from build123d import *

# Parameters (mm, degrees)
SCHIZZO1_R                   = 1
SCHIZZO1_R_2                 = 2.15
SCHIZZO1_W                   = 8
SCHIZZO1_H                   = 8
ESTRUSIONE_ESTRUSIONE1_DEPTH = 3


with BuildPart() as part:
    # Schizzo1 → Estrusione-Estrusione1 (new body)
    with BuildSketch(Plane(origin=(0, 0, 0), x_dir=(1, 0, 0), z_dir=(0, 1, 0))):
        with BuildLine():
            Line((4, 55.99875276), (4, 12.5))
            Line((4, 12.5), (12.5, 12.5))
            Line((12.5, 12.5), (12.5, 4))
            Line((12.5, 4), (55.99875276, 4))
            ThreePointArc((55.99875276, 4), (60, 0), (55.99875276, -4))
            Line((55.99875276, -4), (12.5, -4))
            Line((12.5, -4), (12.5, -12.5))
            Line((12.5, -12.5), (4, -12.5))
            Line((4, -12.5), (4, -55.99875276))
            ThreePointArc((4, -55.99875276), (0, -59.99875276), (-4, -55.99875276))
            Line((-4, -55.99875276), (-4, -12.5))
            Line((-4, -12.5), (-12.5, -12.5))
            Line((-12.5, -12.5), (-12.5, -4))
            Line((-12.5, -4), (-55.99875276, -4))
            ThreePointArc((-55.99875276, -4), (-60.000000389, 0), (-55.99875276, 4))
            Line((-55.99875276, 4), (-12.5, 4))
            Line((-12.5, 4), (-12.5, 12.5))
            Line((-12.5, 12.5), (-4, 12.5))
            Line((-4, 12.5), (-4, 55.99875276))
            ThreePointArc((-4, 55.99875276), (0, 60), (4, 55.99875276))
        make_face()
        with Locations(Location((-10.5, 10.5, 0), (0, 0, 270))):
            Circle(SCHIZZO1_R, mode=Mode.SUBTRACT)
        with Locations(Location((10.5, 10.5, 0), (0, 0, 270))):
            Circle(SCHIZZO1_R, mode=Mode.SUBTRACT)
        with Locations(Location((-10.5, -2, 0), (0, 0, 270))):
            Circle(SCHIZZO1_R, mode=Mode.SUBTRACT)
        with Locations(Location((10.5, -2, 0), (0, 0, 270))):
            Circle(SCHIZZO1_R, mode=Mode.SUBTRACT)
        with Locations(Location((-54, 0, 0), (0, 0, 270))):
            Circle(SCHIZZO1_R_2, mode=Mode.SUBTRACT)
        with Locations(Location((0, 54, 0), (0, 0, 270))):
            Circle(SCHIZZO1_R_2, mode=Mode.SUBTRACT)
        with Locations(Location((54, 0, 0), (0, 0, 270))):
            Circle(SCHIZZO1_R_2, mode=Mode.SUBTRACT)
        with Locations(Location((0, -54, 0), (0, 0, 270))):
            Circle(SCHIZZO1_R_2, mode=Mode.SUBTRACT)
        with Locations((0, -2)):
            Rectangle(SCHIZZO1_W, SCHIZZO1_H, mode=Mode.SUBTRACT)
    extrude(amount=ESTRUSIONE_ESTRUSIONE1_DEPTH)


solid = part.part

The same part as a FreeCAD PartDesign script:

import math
import FreeCAD as App
import Part
import Sketcher
from FreeCAD import Vector
Q = App.Units.Quantity

doc = App.newDocument("Part")
body = doc.addObject("PartDesign::Body", "Body")

# Sketch on XZ plane
sketch1 = body.newObject("Sketcher::SketchObject", "Sketch")
sketch1.AttachmentSupport = (doc.getObject("XZ_Plane"), [""])
sketch1.MapMode = "FlatFace"
sketch1.addGeometry([
    Part.LineSegment(Vector(4, -12.5, 0), Vector(4, -55.998753, 0)),  # 0
    Part.ArcOfCircle(Part.Circle(Vector(0, -56, 0), Vector(0, 0, 1), 4), math.radians(179.982137), math.radians(360.017863)),  # 1
    Part.LineSegment(Vector(-4, -55.998753, 0), Vector(-4, -12.5, 0)),  # 2
    Part.LineSegment(Vector(-4, -12.5, 0), Vector(-12.5, -12.5, 0)),  # 3
    Part.LineSegment(Vector(-12.5, -12.5, 0), Vector(-12.5, -4, 0)),  # 4
    Part.LineSegment(Vector(-12.5, -4, 0), Vector(-55.998753, -4, 0)),  # 5
    Part.ArcOfCircle(Part.Circle(Vector(-56, 0, 0), Vector(0, 0, 1), 4), math.radians(89.982132), math.radians(270.017868)),  # 6
    Part.LineSegment(Vector(-55.998753, 4, 0), Vector(-12.5, 4, 0)),  # 7
    Part.LineSegment(Vector(-12.5, 4, 0), Vector(-12.5, 12.5, 0)),  # 8
    Part.LineSegment(Vector(-12.5, 12.5, 0), Vector(-4, 12.5, 0)),  # 9
    Part.LineSegment(Vector(-4, 12.5, 0), Vector(-4, 55.998753, 0)),  # 10
    Part.ArcOfCircle(Part.Circle(Vector(0, 55.998753, 0), Vector(0, 0, 1), 4), math.radians(0), math.radians(180)),  # 11
    Part.LineSegment(Vector(4, 55.998753, 0), Vector(4, 12.5, 0)),  # 12
    Part.LineSegment(Vector(4, 12.5, 0), Vector(12.5, 12.5, 0)),  # 13
    Part.LineSegment(Vector(12.5, 12.5, 0), Vector(12.5, 4, 0)),  # 14
    Part.LineSegment(Vector(12.5, 4, 0), Vector(55.998753, 4, 0)),  # 15
    Part.ArcOfCircle(Part.Circle(Vector(56, 0, 0), Vector(0, 0, 1), 4), math.radians(-90.017863), math.radians(90.017863)),  # 16
    Part.LineSegment(Vector(55.998753, -4, 0), Vector(12.5, -4, 0)),  # 17
    Part.LineSegment(Vector(12.5, -4, 0), Vector(12.5, -12.5, 0)),  # 18
    Part.LineSegment(Vector(12.5, -12.5, 0), Vector(4, -12.5, 0)),  # 19
    Part.Circle(Vector(0, 54, 0), Vector(0, 0, 1), 2.15),  # 20
    Part.Circle(Vector(54, 0, 0), Vector(0, 0, 1), 2.15),  # 21
    Part.Circle(Vector(10.5, 2, 0), Vector(0, 0, 1), 1),  # 22
    Part.LineSegment(Vector(-4, 6, 0), Vector(-4, -2, 0)),  # 23
    Part.LineSegment(Vector(-4, -2, 0), Vector(4, -2, 0)),  # 24
    Part.LineSegment(Vector(4, -2, 0), Vector(4, 6, 0)),  # 25
    Part.LineSegment(Vector(4, 6, 0), Vector(-4, 6, 0)),  # 26
    Part.Circle(Vector(-10.5, 2, 0), Vector(0, 0, 1), 1),  # 27
    Part.Circle(Vector(-54, 0, 0), Vector(0, 0, 1), 2.15),  # 28
    Part.Circle(Vector(10.5, -10.5, 0), Vector(0, 0, 1), 1),  # 29
    Part.Circle(Vector(0, -54, 0), Vector(0, 0, 1), 2.15),  # 30
    Part.Circle(Vector(-10.5, -10.5, 0), Vector(0, 0, 1), 1),  # 31
], False)
sketch1.addConstraint([
    Sketcher.Constraint("Coincident", 0, 2, 1, 2),
    Sketcher.Constraint("Coincident", 1, 1, 2, 1),
    Sketcher.Constraint("Coincident", 2, 2, 3, 1),
    Sketcher.Constraint("Coincident", 3, 2, 4, 1),
    Sketcher.Constraint("Coincident", 4, 2, 5, 1),
    Sketcher.Constraint("Coincident", 5, 2, 6, 2),
    Sketcher.Constraint("Coincident", 6, 1, 7, 1),
    Sketcher.Constraint("Coincident", 7, 2, 8, 1),
    Sketcher.Constraint("Coincident", 8, 2, 9, 1),
    Sketcher.Constraint("Coincident", 9, 2, 10, 1),
    Sketcher.Constraint("Tangent", 10, 2, 11, 2),
    Sketcher.Constraint("Tangent", 11, 1, 12, 1),
    Sketcher.Constraint("Coincident", 12, 2, 13, 1),
    Sketcher.Constraint("Coincident", 13, 2, 14, 1),
    Sketcher.Constraint("Coincident", 14, 2, 15, 1),
    Sketcher.Constraint("Coincident", 15, 2, 16, 2),
    Sketcher.Constraint("Coincident", 16, 1, 17, 1),
    Sketcher.Constraint("Coincident", 17, 2, 18, 1),
    Sketcher.Constraint("Coincident", 18, 2, 19, 1),
    Sketcher.Constraint("Coincident", 19, 2, 0, 1),
    Sketcher.Constraint("Coincident", 23, 2, 24, 1),
    Sketcher.Constraint("Coincident", 24, 2, 25, 1),
    Sketcher.Constraint("Coincident", 25, 2, 26, 1),
    Sketcher.Constraint("Coincident", 26, 2, 23, 1),
    Sketcher.Constraint("Vertical", 0),
    Sketcher.Constraint("Vertical", 2),
    Sketcher.Constraint("Horizontal", 3),
    Sketcher.Constraint("Vertical", 4),
    Sketcher.Constraint("Horizontal", 5),
    Sketcher.Constraint("Horizontal", 7),
    Sketcher.Constraint("Vertical", 8),
    Sketcher.Constraint("Horizontal", 9),
    Sketcher.Constraint("Vertical", 10),
    Sketcher.Constraint("Vertical", 12),
    Sketcher.Constraint("Horizontal", 13),
    Sketcher.Constraint("Vertical", 14),
    Sketcher.Constraint("Horizontal", 15),
    Sketcher.Constraint("Horizontal", 17),
    Sketcher.Constraint("Vertical", 18),
    Sketcher.Constraint("Horizontal", 19),
    Sketcher.Constraint("Vertical", 23),
    Sketcher.Constraint("Horizontal", 24),
    Sketcher.Constraint("Vertical", 25),
    Sketcher.Constraint("Horizontal", 26),
    Sketcher.Constraint("Equal", 1, 6),
    Sketcher.Constraint("Equal", 6, 11),
    Sketcher.Constraint("Equal", 11, 16),
    Sketcher.Constraint("Equal", 20, 21),
    Sketcher.Constraint("Equal", 22, 27),
    Sketcher.Constraint("Equal", 21, 28),
    Sketcher.Constraint("Equal", 27, 29),
    Sketcher.Constraint("Equal", 28, 30),
    Sketcher.Constraint("Equal", 29, 31),
    Sketcher.Constraint("Symmetric", 6, 3, 16, 3, -1, 1),
    Sketcher.Constraint("Symmetric", 21, 3, 28, 3, -1, 1),
    Sketcher.Constraint("Symmetric", 20, 3, 30, 3, -1, 1),
    Sketcher.Constraint("Symmetric", 0, 2, 10, 2, -1, 1),
    Sketcher.Constraint("Symmetric", 3, 2, 13, 2, -1, 1),
    Sketcher.Constraint("Symmetric", 8, 2, 18, 2, -1, 1),
    Sketcher.Constraint("Symmetric", 22, 3, 27, 3, -2),
    Sketcher.Constraint("Symmetric", 29, 3, 31, 3, -2),
    Sketcher.Constraint("Symmetric", 0, 2, 1, 1, -2),
    Sketcher.Constraint("Symmetric", 8, 2, 13, 2, -2),
    Sketcher.Constraint("Symmetric", 6, 1, 15, 2, -2),
    Sketcher.Constraint("PointOnObject", 20, 3, -2),
    Sketcher.Constraint("PointOnObject", 21, 3, -1),
    Sketcher.Constraint("Vertical", 22, 3, 29, 3),
    Sketcher.Constraint("Vertical", 5, 2, 6, 1),
    Sketcher.Constraint("Vertical", 15, 2, 16, 1),
    Sketcher.Constraint("Vertical", 10, 2, 23, 2),
    Sketcher.Constraint("Vertical", 19, 2, 24, 2),
    Sketcher.Constraint("Equal", 17, 0),
    Sketcher.Constraint("Equal", 19, 4),
    Sketcher.Constraint("Equal", 26, 23),
    Sketcher.Constraint("Diameter", 22, Q("2 mm")),
    Sketcher.Constraint("Radius", 1, Q("4 mm")),
    Sketcher.Constraint("Diameter", 20, Q("4.3 mm")),
    Sketcher.Constraint("DistanceX", 3, 2, 3, 1, Q("8.5 mm")),
    Sketcher.Constraint("DistanceY", 1, 3, -1, 1, Q("56 mm")),
    Sketcher.Constraint("DistanceX", 6, 3, -1, 1, Q("56 mm")),
    Sketcher.Constraint("DistanceY", -1, 1, 20, 3, Q("54 mm")),
    Sketcher.Constraint("DistanceX", -1, 1, 21, 3, Q("54 mm")),
    Sketcher.Constraint("DistanceY", -1, 1, 22, 3, Q("2 mm")),
    Sketcher.Constraint("DistanceY", 23, 2, -1, 1, Q("2 mm")),
    Sketcher.Constraint("DistanceX", 27, 3, 22, 3, Q("21 mm")),
    Sketcher.Constraint("DistanceY", 2, 2, 31, 3, Q("2 mm")),
    Sketcher.Constraint("DistanceX", 5, 2, 5, 1, Q("43.498753 mm")),
])
pad1 = body.newObject("PartDesign::Pad", "Pad")
pad1.Profile = sketch1
pad1.Length = 3
pad1.Reversed = True

doc.recompute()
